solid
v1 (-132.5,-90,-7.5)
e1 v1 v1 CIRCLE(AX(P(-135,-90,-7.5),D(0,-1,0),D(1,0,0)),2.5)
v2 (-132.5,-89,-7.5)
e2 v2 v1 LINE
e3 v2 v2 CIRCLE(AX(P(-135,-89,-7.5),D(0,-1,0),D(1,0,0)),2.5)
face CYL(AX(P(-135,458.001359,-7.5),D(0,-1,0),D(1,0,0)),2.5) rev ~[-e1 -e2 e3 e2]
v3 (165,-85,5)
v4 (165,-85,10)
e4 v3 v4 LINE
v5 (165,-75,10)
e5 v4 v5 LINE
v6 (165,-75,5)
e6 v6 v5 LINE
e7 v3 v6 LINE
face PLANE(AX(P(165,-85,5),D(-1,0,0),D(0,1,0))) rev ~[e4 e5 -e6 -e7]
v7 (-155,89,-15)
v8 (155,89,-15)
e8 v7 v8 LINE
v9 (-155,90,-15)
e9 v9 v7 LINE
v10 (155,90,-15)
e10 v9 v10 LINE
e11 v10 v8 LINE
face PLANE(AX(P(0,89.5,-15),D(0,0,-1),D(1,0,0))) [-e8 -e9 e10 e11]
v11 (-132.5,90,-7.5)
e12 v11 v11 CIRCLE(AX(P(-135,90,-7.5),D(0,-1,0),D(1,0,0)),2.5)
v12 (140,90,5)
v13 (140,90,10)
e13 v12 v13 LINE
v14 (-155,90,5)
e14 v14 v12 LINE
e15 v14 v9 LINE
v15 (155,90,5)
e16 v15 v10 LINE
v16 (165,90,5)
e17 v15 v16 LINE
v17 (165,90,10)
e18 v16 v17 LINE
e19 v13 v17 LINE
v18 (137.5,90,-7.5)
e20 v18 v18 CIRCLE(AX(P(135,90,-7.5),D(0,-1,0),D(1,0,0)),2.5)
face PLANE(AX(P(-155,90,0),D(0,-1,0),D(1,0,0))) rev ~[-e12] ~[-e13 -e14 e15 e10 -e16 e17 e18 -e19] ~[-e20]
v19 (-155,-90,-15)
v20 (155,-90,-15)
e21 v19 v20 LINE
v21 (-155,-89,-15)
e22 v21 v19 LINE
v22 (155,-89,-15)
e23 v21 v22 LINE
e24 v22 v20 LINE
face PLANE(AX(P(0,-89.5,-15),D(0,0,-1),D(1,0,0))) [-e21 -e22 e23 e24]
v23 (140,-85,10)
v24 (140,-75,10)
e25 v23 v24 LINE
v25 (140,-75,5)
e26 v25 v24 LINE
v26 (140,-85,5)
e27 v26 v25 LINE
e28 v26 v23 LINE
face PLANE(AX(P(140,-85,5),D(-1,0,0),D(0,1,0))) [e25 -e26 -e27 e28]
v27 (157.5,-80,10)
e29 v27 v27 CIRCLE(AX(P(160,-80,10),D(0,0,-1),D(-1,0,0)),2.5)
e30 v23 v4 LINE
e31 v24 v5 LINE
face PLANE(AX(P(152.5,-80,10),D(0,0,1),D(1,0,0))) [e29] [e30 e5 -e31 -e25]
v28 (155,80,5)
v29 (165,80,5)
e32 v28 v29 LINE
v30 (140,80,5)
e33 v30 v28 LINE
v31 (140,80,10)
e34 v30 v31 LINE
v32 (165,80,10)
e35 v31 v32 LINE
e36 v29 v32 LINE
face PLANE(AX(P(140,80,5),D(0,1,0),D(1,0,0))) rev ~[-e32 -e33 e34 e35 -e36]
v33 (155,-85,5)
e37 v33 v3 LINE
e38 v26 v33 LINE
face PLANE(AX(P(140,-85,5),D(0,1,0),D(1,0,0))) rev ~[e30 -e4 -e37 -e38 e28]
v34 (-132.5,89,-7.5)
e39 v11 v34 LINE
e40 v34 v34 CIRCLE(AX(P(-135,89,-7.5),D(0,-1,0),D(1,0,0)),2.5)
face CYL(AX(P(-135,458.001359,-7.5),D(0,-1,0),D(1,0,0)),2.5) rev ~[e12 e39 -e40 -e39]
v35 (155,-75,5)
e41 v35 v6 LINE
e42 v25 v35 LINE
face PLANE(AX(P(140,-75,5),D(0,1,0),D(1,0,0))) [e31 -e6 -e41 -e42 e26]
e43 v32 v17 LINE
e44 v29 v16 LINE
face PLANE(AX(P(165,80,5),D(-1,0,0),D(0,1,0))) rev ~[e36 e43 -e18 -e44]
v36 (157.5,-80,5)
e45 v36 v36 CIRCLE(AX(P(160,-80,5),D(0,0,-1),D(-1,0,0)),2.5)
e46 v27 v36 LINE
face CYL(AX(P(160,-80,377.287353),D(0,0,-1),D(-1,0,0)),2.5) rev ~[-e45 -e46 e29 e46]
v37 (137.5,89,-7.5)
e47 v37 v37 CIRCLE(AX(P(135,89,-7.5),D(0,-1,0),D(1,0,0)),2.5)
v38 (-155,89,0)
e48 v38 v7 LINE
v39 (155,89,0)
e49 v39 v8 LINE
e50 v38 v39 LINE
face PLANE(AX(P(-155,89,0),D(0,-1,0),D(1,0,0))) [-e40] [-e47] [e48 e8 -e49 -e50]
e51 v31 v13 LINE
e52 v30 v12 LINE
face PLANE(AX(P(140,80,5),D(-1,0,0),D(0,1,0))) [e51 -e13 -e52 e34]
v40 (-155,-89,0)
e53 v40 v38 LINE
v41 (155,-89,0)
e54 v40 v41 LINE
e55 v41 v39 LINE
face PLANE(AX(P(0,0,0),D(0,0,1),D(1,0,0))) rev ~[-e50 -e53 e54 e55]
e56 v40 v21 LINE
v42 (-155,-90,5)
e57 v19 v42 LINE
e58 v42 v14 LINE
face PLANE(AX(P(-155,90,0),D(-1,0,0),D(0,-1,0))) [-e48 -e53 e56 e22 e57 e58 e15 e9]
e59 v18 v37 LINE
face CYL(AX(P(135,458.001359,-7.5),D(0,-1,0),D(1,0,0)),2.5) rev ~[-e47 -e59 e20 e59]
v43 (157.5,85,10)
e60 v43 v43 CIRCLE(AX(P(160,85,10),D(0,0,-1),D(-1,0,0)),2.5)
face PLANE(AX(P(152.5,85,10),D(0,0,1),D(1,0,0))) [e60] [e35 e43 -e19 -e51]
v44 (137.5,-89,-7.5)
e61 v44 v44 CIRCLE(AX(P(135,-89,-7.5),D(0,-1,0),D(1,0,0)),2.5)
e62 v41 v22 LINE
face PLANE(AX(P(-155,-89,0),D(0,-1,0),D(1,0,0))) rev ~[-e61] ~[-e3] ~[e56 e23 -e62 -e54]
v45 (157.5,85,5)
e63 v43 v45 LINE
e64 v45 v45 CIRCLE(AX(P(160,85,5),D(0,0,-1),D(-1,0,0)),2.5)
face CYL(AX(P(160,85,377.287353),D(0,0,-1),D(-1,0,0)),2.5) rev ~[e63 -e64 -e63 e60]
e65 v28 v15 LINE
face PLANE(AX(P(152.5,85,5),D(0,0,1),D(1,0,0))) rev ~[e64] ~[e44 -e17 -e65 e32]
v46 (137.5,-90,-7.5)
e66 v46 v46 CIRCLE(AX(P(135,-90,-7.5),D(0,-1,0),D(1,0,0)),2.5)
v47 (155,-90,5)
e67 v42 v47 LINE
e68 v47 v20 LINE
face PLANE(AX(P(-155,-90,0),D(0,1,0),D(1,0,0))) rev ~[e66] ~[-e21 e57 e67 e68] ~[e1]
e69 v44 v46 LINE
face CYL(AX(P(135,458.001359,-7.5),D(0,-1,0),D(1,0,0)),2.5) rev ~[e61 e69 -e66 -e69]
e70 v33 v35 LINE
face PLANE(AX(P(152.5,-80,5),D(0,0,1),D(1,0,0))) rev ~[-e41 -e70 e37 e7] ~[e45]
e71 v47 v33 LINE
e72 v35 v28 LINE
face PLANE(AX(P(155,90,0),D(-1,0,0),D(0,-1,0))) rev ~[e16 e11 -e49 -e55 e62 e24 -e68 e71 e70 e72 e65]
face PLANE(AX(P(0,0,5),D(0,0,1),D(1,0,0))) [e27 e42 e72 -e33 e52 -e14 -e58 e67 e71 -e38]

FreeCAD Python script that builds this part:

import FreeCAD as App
import Part
import Sketcher
from FreeCAD import Vector

doc = App.newDocument("Part")
body = doc.addObject("PartDesign::Body", "Body")

sketch1 = body.newObject("Sketcher::SketchObject", "Sketch")
sketch1.AttachmentSupport = (doc.getObject("XY_Plane"), [""])
sketch1.MapMode = "FlatFace"
sketch1.addGeometry([
    Part.LineSegment(Vector(-155, 90, 0), Vector(-155, -90, 0)),
    Part.LineSegment(Vector(-155, -90, 0), Vector(155, -90, 0)),
    Part.LineSegment(Vector(155, -90, 0), Vector(155, 90, 0)),
    Part.LineSegment(Vector(155, 90, 0), Vector(-155, 90, 0)),
], False)
sketch1.addConstraint([
    Sketcher.Constraint("Coincident", 0, 2, 1, 1),
    Sketcher.Constraint("Coincident", 1, 2, 2, 1),
    Sketcher.Constraint("Coincident", 2, 2, 3, 1),
    Sketcher.Constraint("Coincident", 3, 2, 0, 1),
    Sketcher.Constraint("Vertical", 0),
    Sketcher.Constraint("Horizontal", 1),
    Sketcher.Constraint("Vertical", 2),
    Sketcher.Constraint("Horizontal", 3),
    Sketcher.Constraint("Symmetric", 0, 2, 2, 2, -1, 1),
    Sketcher.Constraint("DistanceX", 1, 1, 1, 2, 310.0),
    Sketcher.Constraint("DistanceY", 0, 2, 0, 1, 180.0),
])
pad1 = body.newObject("PartDesign::Pad", "Pad")
pad1.Profile = sketch1
pad1.Length = 5

sketch2 = body.newObject("Sketcher::SketchObject", "Sketch001")
sketch2.AttachmentSupport = (doc.getObject("XY_Plane"), [""])
sketch2.MapMode = "FlatFace"
sketch2.AttachmentOffset = App.Placement(Vector(0, 0, 5), App.Rotation())
sketch2.addGeometry([
    Part.LineSegment(Vector(140, 90, 0), Vector(140, 80, 0)),
    Part.LineSegment(Vector(140, 80, 0), Vector(165, 80, 0)),
    Part.LineSegment(Vector(165, 80, 0), Vector(165, 90, 0)),
    Part.LineSegment(Vector(165, 90, 0), Vector(140, 90, 0)),
], False)
sketch2.addConstraint([
    Sketcher.Constraint("Coincident", 0, 2, 1, 1),
    Sketcher.Constraint("Coincident", 1, 2, 2, 1),
    Sketcher.Constraint("Coincident", 2, 2, 3, 1),
    Sketcher.Constraint("Coincident", 3, 2, 0, 1),
    Sketcher.Constraint("Vertical", 0),
    Sketcher.Constraint("Horizontal", 1),
    Sketcher.Constraint("Vertical", 2),
    Sketcher.Constraint("Horizontal", 3),
    Sketcher.Constraint("DistanceX", 1, 1, 1, 2, 25.0),
    Sketcher.Constraint("DistanceY", 0, 2, 0, 1, 10.0),
    Sketcher.Constraint("DistanceX", -1, 1, 0, 2, 140.0),
    Sketcher.Constraint("DistanceY", -1, 1, 0, 2, 80.0),
])
pad2 = body.newObject("PartDesign::Pad", "Pad001")
pad2.Profile = sketch2
pad2.Length = 5

sketch3 = body.newObject("Sketcher::SketchObject", "Sketch002")
sketch3.AttachmentSupport = (doc.getObject("XY_Plane"), [""])
sketch3.MapMode = "FlatFace"
sketch3.AttachmentOffset = App.Placement(Vector(0, 0, 10), App.Rotation())
sketch3.addGeometry(Part.Circle(Vector(160, 85, 0), Vector(0, 0, 1), 2.5), False)
sketch3.addConstraint([
    Sketcher.Constraint("Diameter", 0, 5.0),
    Sketcher.Constraint("DistanceX", -1, 1, 0, 3, 160.0),
    Sketcher.Constraint("DistanceY", -1, 1, 0, 3, 85.0),
])
doc.recompute()
hole = body.newObject("PartDesign::Hole", "Hole")
hole.Profile = sketch3
hole.ThreadType = "None"
hole.Diameter = 5
hole.DepthType = "ThroughAll"

sketch4 = body.newObject("Sketcher::SketchObject", "Sketch003")
sketch4.AttachmentSupport = (doc.getObject("XY_Plane"), [""])
sketch4.MapMode = "FlatFace"
sketch4.AttachmentOffset = App.Placement(Vector(0, 0, 5), App.Rotation())
sketch4.addGeometry([
    Part.LineSegment(Vector(140, -75, 0), Vector(140, -85, 0)),
    Part.LineSegment(Vector(140, -85, 0), Vector(165, -85, 0)),
    Part.LineSegment(Vector(165, -85, 0), Vector(165, -75, 0)),
    Part.LineSegment(Vector(165, -75, 0), Vector(140, -75, 0)),
], False)
sketch4.addConstraint([
    Sketcher.Constraint("Coincident", 0, 2, 1, 1),
    Sketcher.Constraint("Coincident", 1, 2, 2, 1),
    Sketcher.Constraint("Coincident", 2, 2, 3, 1),
    Sketcher.Constraint("Coincident", 3, 2, 0, 1),
    Sketcher.Constraint("Vertical", 0),
    Sketcher.Constraint("Horizontal", 1),
    Sketcher.Constraint("Vertical", 2),
    Sketcher.Constraint("Horizontal", 3),
    Sketcher.Constraint("DistanceX", 1, 1, 1, 2, 25.0),
    Sketcher.Constraint("DistanceY", 0, 2, 0, 1, 10.0),
    Sketcher.Constraint("DistanceX", -1, 1, 0, 2, 140.0),
    Sketcher.Constraint("DistanceY", 0, 2, -1, 1, 85.0),
])
pad3 = body.newObject("PartDesign::Pad", "Pad002")
pad3.Profile = sketch4
pad3.Length = 5

sketch5 = body.newObject("Sketcher::SketchObject", "Sketch004")
sketch5.AttachmentSupport = (doc.getObject("XY_Plane"), [""])
sketch5.MapMode = "FlatFace"
sketch5.AttachmentOffset = App.Placement(Vector(0, 0, 10), App.Rotation())
sketch5.addGeometry(Part.Circle(Vector(160, -80, 0), Vector(0, 0, 1), 2.5), False)
sketch5.addConstraint([
    Sketcher.Constraint("Diameter", 0, 5.0),
    Sketcher.Constraint("DistanceX", -1, 1, 0, 3, 160.0),
    Sketcher.Constraint("DistanceY", 0, 3, -1, 1, 80.0),
])
doc.recompute()
hole2 = body.newObject("PartDesign::Hole", "Hole001")
hole2.Profile = sketch5
hole2.ThreadType = "None"
hole2.Diameter = 5
hole2.DepthType = "ThroughAll"

sketch6 = body.newObject("Sketcher::SketchObject", "Sketch005")
sketch6.AttachmentSupport = (doc.getObject("XY_Plane"), [""])
sketch6.MapMode = "FlatFace"
sketch6.addGeometry([
    Part.LineSegment(Vector(-155, 89, 0), Vector(-155, 90, 0)),
    Part.LineSegment(Vector(-155, 90, 0), Vector(155, 90, 0)),
    Part.LineSegment(Vector(155, 90, 0), Vector(155, 89, 0)),
    Part.LineSegment(Vector(155, 89, 0), Vector(-155, 89, 0)),
    Part.LineSegment(Vector(-155, -90, 0), Vector(-155, -89, 0)),
    Part.LineSegment(Vector(-155, -89, 0), Vector(155, -89, 0)),
    Part.LineSegment(Vector(155, -89, 0), Vector(155, -90, 0)),
    Part.LineSegment(Vector(155, -90, 0), Vector(-155, -90, 0)),
], False)
sketch6.addConstraint([
    Sketcher.Constraint("Coincident", 0, 2, 1, 1),
    Sketcher.Constraint("Coincident", 1, 2, 2, 1),
    Sketcher.Constraint("Coincident", 2, 2, 3, 1),
    Sketcher.Constraint("Coincident", 3, 2, 0, 1),
    Sketcher.Constraint("Coincident", 4, 2, 5, 1),
    Sketcher.Constraint("Coincident", 5, 2, 6, 1),
    Sketcher.Constraint("Coincident", 6, 2, 7, 1),
    Sketcher.Constraint("Coincident", 7, 2, 4, 1),
    Sketcher.Constraint("Vertical", 0),
    Sketcher.Constraint("Horizontal", 1),
    Sketcher.Constraint("Vertical", 2),
    Sketcher.Constraint("Horizontal", 3),
    Sketcher.Constraint("Vertical", 4),
    Sketcher.Constraint("Horizontal", 5),
    Sketcher.Constraint("Vertical", 6),
    Sketcher.Constraint("Horizontal", 7),
    Sketcher.Constraint("Symmetric", 2, 2, 4, 2, -1, 1),
    Sketcher.Constraint("Symmetric", 0, 2, 6, 2, -1, 1),
    Sketcher.Constraint("Vertical", 3, 2, 4, 2),
    Sketcher.Constraint("DistanceX", 1, 1, 1, 2, 310.0),
    Sketcher.Constraint("DistanceY", 0, 1, 0, 2, 1.0),
    Sketcher.Constraint("DistanceY", -1, 1, 0, 2, 90.0),
])
pad4 = body.newObject("PartDesign::Pad", "Pad003")
pad4.Profile = sketch6
pad4.Length = 15
pad4.Reversed = True

sketch7 = body.newObject("Sketcher::SketchObject", "Sketch006")
sketch7.AttachmentSupport = (doc.getObject("XZ_Plane"), [""])
sketch7.MapMode = "FlatFace"
sketch7.AttachmentOffset = App.Placement(Vector(0, 0, -90), App.Rotation())
sketch7.addGeometry(Part.Circle(Vector(135, -7.5, 0), Vector(0, 0, 1), 2.5), False)
sketch7.addConstraint([
    Sketcher.Constraint("Diameter", 0, 5.0),
    Sketcher.Constraint("DistanceX", -1, 1, 0, 3, 135.0),
    Sketcher.Constraint("DistanceY", 0, 3, -1, 1, 7.5),
])
doc.recompute()
hole3 = body.newObject("PartDesign::Hole", "Hole002")
hole3.Profile = sketch7
hole3.ThreadType = "None"
hole3.Diameter = 5
hole3.DepthType = "ThroughAll"
hole3.Reversed = True

sketch8 = body.newObject("Sketcher::SketchObject", "Sketch007")
sketch8.AttachmentSupport = (doc.getObject("XZ_Plane"), [""])
sketch8.MapMode = "FlatFace"
sketch8.AttachmentOffset = App.Placement(Vector(0, 0, -90), App.Rotation())
sketch8.addGeometry(Part.Circle(Vector(-135, -7.5, 0), Vector(0, 0, 1), 2.5), False)
sketch8.addConstraint([
    Sketcher.Constraint("Diameter", 0, 5.0),
    Sketcher.Constraint("DistanceX", 0, 3, -1, 1, 135.0),
    Sketcher.Constraint("DistanceY", 0, 3, -1, 1, 7.5),
])
doc.recompute()
hole4 = body.newObject("PartDesign::Hole", "Hole003")
hole4.Profile = sketch8
hole4.ThreadType = "None"
hole4.Diameter = 5
hole4.DepthType = "ThroughAll"
hole4.Reversed = True

doc.recompute()
